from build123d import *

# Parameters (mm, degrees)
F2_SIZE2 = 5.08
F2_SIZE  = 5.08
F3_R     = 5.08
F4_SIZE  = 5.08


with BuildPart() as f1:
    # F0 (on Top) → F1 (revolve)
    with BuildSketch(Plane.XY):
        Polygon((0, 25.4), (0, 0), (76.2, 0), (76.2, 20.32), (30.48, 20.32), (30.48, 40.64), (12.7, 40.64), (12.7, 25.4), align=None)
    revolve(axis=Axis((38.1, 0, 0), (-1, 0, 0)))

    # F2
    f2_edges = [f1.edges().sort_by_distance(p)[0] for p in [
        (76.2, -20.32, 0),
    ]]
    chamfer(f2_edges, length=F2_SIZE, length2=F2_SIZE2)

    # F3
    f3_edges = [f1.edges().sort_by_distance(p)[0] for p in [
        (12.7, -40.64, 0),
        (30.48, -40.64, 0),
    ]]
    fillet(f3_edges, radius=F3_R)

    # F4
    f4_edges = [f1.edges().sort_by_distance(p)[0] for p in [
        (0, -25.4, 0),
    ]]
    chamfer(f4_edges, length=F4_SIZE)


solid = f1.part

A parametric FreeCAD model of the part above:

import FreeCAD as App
import Part
import Sketcher

V = App.Vector
Q = App.Units.Quantity


def edges_at(feature, points):
    """Names of the edges that pass closest to the given points."""
    edges = feature.Shape.Edges
    near = lambda p: min(range(len(edges)), key=lambda i: edges[i].distToShape(Part.Vertex(*p))[0])
    return sorted({f"Edge{near(p) + 1}" for p in points})


def add_polygon(sketch, points):
    """Adds a closed chain of lines whose ends are joined by coincident constraints."""
    first, n = sketch.GeometryCount, len(points)
    for a, b in zip(points, points[1:] + points[:1]):
        sketch.addGeometry(Part.LineSegment(App.Vector(*a, 0), App.Vector(*b, 0)), False)
    for i in range(n):
        sketch.addConstraint(Sketcher.Constraint("Coincident", first + i, 2, first + (i + 1) % n, 1))

doc = App.newDocument("Part")
body = doc.addObject("PartDesign::Body", "Body")

sketch1 = body.newObject("Sketcher::SketchObject", "Sketch")
sketch1.AttachmentSupport = (doc.getObject("XY_Plane"), [""])
sketch1.MapMode = "FlatFace"
add_polygon(sketch1, [(0, 25), (0, 0), (76, 0), (76, 20), (30, 20), (30, 41), (13, 41), (13, 25)])
sketch1.addConstraint([
    Sketcher.Constraint("Vertical", 0),
    Sketcher.Constraint("Horizontal", 1),
    Sketcher.Constraint("Vertical", 2),
    Sketcher.Constraint("Horizontal", 3),
    Sketcher.Constraint("Vertical", 4),
    Sketcher.Constraint("Horizontal", 5),
    Sketcher.Constraint("Vertical", 6),
    Sketcher.Constraint("Horizontal", 7),
    Sketcher.Constraint("Coincident", 0, 2, -1, 1),
    Sketcher.Constraint("Equal", 2, 4),
    Sketcher.Constraint("DistanceX", 1, 1, 1, 2, Q("3 in")),
    Sketcher.Constraint("DistanceY", 0, 2, 0, 1, Q("1 in")),
    Sketcher.Constraint("DistanceX", 3, 2, 3, 1, Q("1.8 in")),
    Sketcher.Constraint("DistanceX", 5, 2, 5, 1, Q("0.7 in")),
    Sketcher.Constraint("DistanceY", 2, 1, 2, 2, Q("0.8 in")),
])
revolution = body.newObject("PartDesign::Revolution", "Revolution")
revolution.Profile = sketch1
revolution.ReferenceAxis = (sketch1, ["H_Axis"])
revolution.Angle = 360
doc.recompute()

chamfer = body.newObject("PartDesign::Chamfer", "Chamfer")
chamfer.Base = (revolution, edges_at(revolution, [(76.2, -20.32, 0)]))
chamfer.ChamferType = "Two distances"
chamfer.Size = Q("0.2 in")
chamfer.Size2 = Q("0.2 in")
doc.recompute()

fillet = body.newObject("PartDesign::Fillet", "Fillet")
fillet.Base = (chamfer, edges_at(chamfer, [(12.7, -40.64, 0), (30.48, -40.64, 0)]))
fillet.Radius = Q("0.2 in")
doc.recompute()

chamfer2 = body.newObject("PartDesign::Chamfer", "Chamfer001")
chamfer2.Base = (fillet, edges_at(fillet, [(0, -25.4, 0)]))
chamfer2.Size = Q("0.2 in")

doc.recompute()
